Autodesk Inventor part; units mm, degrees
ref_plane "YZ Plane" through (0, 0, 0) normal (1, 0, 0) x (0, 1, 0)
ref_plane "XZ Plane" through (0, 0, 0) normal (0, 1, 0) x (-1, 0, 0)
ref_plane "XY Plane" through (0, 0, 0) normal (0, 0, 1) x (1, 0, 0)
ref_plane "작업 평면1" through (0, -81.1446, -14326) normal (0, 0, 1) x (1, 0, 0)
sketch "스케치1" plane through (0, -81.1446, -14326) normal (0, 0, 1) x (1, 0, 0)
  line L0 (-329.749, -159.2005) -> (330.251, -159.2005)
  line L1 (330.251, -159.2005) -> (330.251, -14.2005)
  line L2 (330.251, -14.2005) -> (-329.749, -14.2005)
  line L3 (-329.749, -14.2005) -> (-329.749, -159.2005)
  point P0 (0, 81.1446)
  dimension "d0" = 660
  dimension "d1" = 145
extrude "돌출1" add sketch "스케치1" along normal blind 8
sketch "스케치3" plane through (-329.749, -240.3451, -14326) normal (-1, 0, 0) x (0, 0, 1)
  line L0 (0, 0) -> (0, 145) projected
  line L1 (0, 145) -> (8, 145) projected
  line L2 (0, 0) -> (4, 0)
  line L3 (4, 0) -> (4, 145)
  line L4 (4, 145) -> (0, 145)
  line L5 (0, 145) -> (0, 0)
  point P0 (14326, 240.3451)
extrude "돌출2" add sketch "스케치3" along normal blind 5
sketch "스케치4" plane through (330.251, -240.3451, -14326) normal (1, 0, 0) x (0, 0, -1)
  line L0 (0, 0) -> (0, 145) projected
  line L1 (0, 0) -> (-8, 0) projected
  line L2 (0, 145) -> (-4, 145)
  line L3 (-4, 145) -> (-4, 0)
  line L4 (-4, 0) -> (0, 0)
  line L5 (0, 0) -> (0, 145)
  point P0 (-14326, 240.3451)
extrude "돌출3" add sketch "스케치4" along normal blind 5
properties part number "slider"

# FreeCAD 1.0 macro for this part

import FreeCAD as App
import Part
import Sketcher

doc = App.newDocument("Part")
body = doc.addObject("PartDesign::Body", "Body")

# Sketch on XY plane
sketch1 = body.newObject("Sketcher::SketchObject", "Sketch")
sketch1.AttachmentSupport = (doc.getObject("XY_Plane"), [""])
sketch1.MapMode = "FlatFace"
sketch1.AttachmentOffset = App.Placement(App.Vector(0, 0, -14326), App.Rotation())
sketch1.addGeometry([
    Part.LineSegment(App.Vector(-330, -95, 0), App.Vector(-330, -240, 0)),
    Part.LineSegment(App.Vector(-330, -240, 0), App.Vector(330, -240, 0)),
    Part.LineSegment(App.Vector(330, -240, 0), App.Vector(330, -95, 0)),
    Part.LineSegment(App.Vector(330, -95, 0), App.Vector(-330, -95, 0)),
], False)
sketch1.addConstraint([
    Sketcher.Constraint("Coincident", 0, 2, 1, 1),
    Sketcher.Constraint("Coincident", 1, 2, 2, 1),
    Sketcher.Constraint("Coincident", 2, 2, 3, 1),
    Sketcher.Constraint("Coincident", 3, 2, 0, 1),
    Sketcher.Constraint("Vertical", 0),
    Sketcher.Constraint("Horizontal", 1),
    Sketcher.Constraint("Vertical", 2),
    Sketcher.Constraint("Horizontal", 3),
    Sketcher.Constraint("DistanceX", 1, 1, 1, 2, 660.0),
    Sketcher.Constraint("DistanceY", 0, 2, 0, 1, 145.0),
    Sketcher.Constraint("DistanceX", 0, 2, -1, 1, 329.749),
    Sketcher.Constraint("DistanceY", 0, 2, -1, 1, 240.345),
])
pad1 = body.newObject("PartDesign::Pad", "Pad")
pad1.Profile = sketch1
pad1.Length = 8

# Sketch on YZ plane
sketch2 = body.newObject("Sketcher::SketchObject", "Sketch001")
sketch2.AttachmentSupport = (doc.getObject("YZ_Plane"), [""])
sketch2.MapMode = "FlatFace"
sketch2.AttachmentOffset = App.Placement(App.Vector(0, 0, -329.749), App.Rotation())
sketch2.addGeometry([
    Part.LineSegment(App.Vector(-95.3, -14326, 0), App.Vector(-240.3, -14326, 0)),
    Part.LineSegment(App.Vector(-240.3, -14326, 0), App.Vector(-240.3, -14322, 0)),
    Part.LineSegment(App.Vector(-240.3, -14322, 0), App.Vector(-95.3, -14322, 0)),
    Part.LineSegment(App.Vector(-95.3, -14322, 0), App.Vector(-95.3, -14326, 0)),
], False)
sketch2.addConstraint([
    Sketcher.Constraint("Coincident", 0, 2, 1, 1),
    Sketcher.Constraint("Coincident", 1, 2, 2, 1),
    Sketcher.Constraint("Coincident", 2, 2, 3, 1),
    Sketcher.Constraint("Coincident", 3, 2, 0, 1),
    Sketcher.Constraint("Horizontal", 0),
    Sketcher.Constraint("Vertical", 1),
    Sketcher.Constraint("Horizontal", 2),
    Sketcher.Constraint("Vertical", 3),
    Sketcher.Constraint("DistanceX", 0, 2, 0, 1, 145.0),
    Sketcher.Constraint("DistanceY", 1, 1, 1, 2, 4.0),
    Sketcher.Constraint("DistanceY", 0, 2, -1, 1, 14326.0),
    Sketcher.Constraint("DistanceX", 0, 2, -1, 1, 240.345),
])
pad2 = body.newObject("PartDesign::Pad", "Pad001")
pad2.Profile = sketch2
pad2.Length = 5
pad2.Reversed = True

# Sketch on YZ plane
sketch3 = body.newObject("Sketcher::SketchObject", "Sketch002")
sketch3.AttachmentSupport = (doc.getObject("YZ_Plane"), [""])
sketch3.MapMode = "FlatFace"
sketch3.AttachmentOffset = App.Placement(App.Vector(0, 0, 330.251), App.Rotation())
sketch3.addGeometry([
    Part.LineSegment(App.Vector(-240.3, -14322, 0), App.Vector(-240.3, -14326, 0)),
    Part.LineSegment(App.Vector(-240.3, -14326, 0), App.Vector(-95.3, -14326, 0)),
    Part.LineSegment(App.Vector(-95.3, -14326, 0), App.Vector(-95.3, -14322, 0)),
    Part.LineSegment(App.Vector(-95.3, -14322, 0), App.Vector(-240.3, -14322, 0)),
], False)
sketch3.addConstraint([
    Sketcher.Constraint("Coincident", 0, 2, 1, 1),
    Sketcher.Constraint("Coincident", 1, 2, 2, 1),
    Sketcher.Constraint("Coincident", 2, 2, 3, 1),
    Sketcher.Constraint("Coincident", 3, 2, 0, 1),
    Sketcher.Constraint("Vertical", 0),
    Sketcher.Constraint("Horizontal", 1),
    Sketcher.Constraint("Vertical", 2),
    Sketcher.Constraint("Horizontal", 3),
    Sketcher.Constraint("DistanceX", 1, 1, 1, 2, 145.0),
    Sketcher.Constraint("DistanceY", 0, 2, 0, 1, 4.0),
    Sketcher.Constraint("DistanceY", 0, 2, -1, 1, 14326.0),
    Sketcher.Constraint("DistanceX", 0, 2, -1, 1, 240.345),
])
pad3 = body.newObject("PartDesign::Pad", "Pad002")
pad3.Profile = sketch3
pad3.Length = 5

doc.recompute()
